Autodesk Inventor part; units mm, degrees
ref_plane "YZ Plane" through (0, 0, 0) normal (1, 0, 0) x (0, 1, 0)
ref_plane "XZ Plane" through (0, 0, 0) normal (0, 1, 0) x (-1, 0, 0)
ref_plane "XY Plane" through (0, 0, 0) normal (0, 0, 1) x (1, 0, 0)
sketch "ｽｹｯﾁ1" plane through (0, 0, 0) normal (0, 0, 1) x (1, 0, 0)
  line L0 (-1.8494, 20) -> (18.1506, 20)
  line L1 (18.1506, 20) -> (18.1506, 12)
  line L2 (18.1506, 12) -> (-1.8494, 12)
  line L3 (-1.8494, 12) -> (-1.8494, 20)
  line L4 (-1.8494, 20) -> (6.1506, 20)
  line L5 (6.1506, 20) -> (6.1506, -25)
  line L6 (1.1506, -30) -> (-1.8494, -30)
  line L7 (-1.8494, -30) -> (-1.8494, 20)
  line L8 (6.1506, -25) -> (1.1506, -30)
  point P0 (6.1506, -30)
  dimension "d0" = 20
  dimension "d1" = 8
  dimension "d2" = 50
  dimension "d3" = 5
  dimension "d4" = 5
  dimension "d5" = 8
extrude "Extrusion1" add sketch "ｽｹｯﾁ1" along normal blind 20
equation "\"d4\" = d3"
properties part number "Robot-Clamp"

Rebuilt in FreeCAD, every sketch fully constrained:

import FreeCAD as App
import Part
import Sketcher
from FreeCAD import Vector
Q = App.Units.Quantity

doc = App.newDocument("Part")
body = doc.addObject("PartDesign::Body", "Body")

# Sketch on XY plane
sketch1 = doc.addObject("Sketcher::SketchObject", "Sketch")
body.addObject(sketch1)
sketch1.AttachmentSupport = (doc.XY_Plane, [""])
sketch1.MapMode = "FlatFace"
sketch1.addGeometry([
    Part.LineSegment(Vector(-1.8, 20, 0), Vector(-1.8, -30, 0)),  # 0
    Part.LineSegment(Vector(-1.8, -30, 0), Vector(1.2, -30, 0)),  # 1
    Part.LineSegment(Vector(1.2, -30, 0), Vector(6.2, -25, 0)),  # 2
    Part.LineSegment(Vector(6.2, -25, 0), Vector(6.2, 12, 0)),  # 3
    Part.LineSegment(Vector(6.2, 12, 0), Vector(18.2, 12, 0)),  # 4
    Part.LineSegment(Vector(18.2, 12, 0), Vector(18.2, 20, 0)),  # 5
    Part.LineSegment(Vector(18.2, 20, 0), Vector(-1.8, 20, 0)),  # 6
], False)
sketch1.addConstraint([
    Sketcher.Constraint("Coincident", 0, 2, 1, 1),
    Sketcher.Constraint("Coincident", 1, 2, 2, 1),
    Sketcher.Constraint("Coincident", 2, 2, 3, 1),
    Sketcher.Constraint("Coincident", 3, 2, 4, 1),
    Sketcher.Constraint("Coincident", 4, 2, 5, 1),
    Sketcher.Constraint("Coincident", 5, 2, 6, 1),
    Sketcher.Constraint("Coincident", 6, 2, 0, 1),
    Sketcher.Constraint("Vertical", 0),
    Sketcher.Constraint("Horizontal", 1),
    Sketcher.Constraint("Vertical", 3),
    Sketcher.Constraint("Horizontal", 4),
    Sketcher.Constraint("Vertical", 5),
    Sketcher.Constraint("Horizontal", 6),
    Sketcher.Constraint("DistanceX", 6, 2, 6, 1, Q("20 mm")),
    Sketcher.Constraint("DistanceY", 0, 2, 0, 1, Q("50 mm")),
    Sketcher.Constraint("DistanceY", 5, 1, 5, 2, Q("8 mm")),
    Sketcher.Constraint("DistanceY", -1, 1, 5, 2, Q("20 mm")),
    Sketcher.Constraint("DistanceX", 1, 2, 2, 2, Q("5 mm")),
    Sketcher.Constraint("DistanceY", 1, 2, 2, 2, Q("5 mm")),
    Sketcher.Constraint("DistanceX", 0, 2, 2, 2, Q("8 mm")),
    Sketcher.Constraint("DistanceX", 0, 2, -1, 1, Q("1.8494 mm")),
])
pad1 = doc.addObject("PartDesign::Pad", "Pad")
body.addObject(pad1)
pad1.Profile = sketch1
pad1.Length = 20

doc.recompute()
